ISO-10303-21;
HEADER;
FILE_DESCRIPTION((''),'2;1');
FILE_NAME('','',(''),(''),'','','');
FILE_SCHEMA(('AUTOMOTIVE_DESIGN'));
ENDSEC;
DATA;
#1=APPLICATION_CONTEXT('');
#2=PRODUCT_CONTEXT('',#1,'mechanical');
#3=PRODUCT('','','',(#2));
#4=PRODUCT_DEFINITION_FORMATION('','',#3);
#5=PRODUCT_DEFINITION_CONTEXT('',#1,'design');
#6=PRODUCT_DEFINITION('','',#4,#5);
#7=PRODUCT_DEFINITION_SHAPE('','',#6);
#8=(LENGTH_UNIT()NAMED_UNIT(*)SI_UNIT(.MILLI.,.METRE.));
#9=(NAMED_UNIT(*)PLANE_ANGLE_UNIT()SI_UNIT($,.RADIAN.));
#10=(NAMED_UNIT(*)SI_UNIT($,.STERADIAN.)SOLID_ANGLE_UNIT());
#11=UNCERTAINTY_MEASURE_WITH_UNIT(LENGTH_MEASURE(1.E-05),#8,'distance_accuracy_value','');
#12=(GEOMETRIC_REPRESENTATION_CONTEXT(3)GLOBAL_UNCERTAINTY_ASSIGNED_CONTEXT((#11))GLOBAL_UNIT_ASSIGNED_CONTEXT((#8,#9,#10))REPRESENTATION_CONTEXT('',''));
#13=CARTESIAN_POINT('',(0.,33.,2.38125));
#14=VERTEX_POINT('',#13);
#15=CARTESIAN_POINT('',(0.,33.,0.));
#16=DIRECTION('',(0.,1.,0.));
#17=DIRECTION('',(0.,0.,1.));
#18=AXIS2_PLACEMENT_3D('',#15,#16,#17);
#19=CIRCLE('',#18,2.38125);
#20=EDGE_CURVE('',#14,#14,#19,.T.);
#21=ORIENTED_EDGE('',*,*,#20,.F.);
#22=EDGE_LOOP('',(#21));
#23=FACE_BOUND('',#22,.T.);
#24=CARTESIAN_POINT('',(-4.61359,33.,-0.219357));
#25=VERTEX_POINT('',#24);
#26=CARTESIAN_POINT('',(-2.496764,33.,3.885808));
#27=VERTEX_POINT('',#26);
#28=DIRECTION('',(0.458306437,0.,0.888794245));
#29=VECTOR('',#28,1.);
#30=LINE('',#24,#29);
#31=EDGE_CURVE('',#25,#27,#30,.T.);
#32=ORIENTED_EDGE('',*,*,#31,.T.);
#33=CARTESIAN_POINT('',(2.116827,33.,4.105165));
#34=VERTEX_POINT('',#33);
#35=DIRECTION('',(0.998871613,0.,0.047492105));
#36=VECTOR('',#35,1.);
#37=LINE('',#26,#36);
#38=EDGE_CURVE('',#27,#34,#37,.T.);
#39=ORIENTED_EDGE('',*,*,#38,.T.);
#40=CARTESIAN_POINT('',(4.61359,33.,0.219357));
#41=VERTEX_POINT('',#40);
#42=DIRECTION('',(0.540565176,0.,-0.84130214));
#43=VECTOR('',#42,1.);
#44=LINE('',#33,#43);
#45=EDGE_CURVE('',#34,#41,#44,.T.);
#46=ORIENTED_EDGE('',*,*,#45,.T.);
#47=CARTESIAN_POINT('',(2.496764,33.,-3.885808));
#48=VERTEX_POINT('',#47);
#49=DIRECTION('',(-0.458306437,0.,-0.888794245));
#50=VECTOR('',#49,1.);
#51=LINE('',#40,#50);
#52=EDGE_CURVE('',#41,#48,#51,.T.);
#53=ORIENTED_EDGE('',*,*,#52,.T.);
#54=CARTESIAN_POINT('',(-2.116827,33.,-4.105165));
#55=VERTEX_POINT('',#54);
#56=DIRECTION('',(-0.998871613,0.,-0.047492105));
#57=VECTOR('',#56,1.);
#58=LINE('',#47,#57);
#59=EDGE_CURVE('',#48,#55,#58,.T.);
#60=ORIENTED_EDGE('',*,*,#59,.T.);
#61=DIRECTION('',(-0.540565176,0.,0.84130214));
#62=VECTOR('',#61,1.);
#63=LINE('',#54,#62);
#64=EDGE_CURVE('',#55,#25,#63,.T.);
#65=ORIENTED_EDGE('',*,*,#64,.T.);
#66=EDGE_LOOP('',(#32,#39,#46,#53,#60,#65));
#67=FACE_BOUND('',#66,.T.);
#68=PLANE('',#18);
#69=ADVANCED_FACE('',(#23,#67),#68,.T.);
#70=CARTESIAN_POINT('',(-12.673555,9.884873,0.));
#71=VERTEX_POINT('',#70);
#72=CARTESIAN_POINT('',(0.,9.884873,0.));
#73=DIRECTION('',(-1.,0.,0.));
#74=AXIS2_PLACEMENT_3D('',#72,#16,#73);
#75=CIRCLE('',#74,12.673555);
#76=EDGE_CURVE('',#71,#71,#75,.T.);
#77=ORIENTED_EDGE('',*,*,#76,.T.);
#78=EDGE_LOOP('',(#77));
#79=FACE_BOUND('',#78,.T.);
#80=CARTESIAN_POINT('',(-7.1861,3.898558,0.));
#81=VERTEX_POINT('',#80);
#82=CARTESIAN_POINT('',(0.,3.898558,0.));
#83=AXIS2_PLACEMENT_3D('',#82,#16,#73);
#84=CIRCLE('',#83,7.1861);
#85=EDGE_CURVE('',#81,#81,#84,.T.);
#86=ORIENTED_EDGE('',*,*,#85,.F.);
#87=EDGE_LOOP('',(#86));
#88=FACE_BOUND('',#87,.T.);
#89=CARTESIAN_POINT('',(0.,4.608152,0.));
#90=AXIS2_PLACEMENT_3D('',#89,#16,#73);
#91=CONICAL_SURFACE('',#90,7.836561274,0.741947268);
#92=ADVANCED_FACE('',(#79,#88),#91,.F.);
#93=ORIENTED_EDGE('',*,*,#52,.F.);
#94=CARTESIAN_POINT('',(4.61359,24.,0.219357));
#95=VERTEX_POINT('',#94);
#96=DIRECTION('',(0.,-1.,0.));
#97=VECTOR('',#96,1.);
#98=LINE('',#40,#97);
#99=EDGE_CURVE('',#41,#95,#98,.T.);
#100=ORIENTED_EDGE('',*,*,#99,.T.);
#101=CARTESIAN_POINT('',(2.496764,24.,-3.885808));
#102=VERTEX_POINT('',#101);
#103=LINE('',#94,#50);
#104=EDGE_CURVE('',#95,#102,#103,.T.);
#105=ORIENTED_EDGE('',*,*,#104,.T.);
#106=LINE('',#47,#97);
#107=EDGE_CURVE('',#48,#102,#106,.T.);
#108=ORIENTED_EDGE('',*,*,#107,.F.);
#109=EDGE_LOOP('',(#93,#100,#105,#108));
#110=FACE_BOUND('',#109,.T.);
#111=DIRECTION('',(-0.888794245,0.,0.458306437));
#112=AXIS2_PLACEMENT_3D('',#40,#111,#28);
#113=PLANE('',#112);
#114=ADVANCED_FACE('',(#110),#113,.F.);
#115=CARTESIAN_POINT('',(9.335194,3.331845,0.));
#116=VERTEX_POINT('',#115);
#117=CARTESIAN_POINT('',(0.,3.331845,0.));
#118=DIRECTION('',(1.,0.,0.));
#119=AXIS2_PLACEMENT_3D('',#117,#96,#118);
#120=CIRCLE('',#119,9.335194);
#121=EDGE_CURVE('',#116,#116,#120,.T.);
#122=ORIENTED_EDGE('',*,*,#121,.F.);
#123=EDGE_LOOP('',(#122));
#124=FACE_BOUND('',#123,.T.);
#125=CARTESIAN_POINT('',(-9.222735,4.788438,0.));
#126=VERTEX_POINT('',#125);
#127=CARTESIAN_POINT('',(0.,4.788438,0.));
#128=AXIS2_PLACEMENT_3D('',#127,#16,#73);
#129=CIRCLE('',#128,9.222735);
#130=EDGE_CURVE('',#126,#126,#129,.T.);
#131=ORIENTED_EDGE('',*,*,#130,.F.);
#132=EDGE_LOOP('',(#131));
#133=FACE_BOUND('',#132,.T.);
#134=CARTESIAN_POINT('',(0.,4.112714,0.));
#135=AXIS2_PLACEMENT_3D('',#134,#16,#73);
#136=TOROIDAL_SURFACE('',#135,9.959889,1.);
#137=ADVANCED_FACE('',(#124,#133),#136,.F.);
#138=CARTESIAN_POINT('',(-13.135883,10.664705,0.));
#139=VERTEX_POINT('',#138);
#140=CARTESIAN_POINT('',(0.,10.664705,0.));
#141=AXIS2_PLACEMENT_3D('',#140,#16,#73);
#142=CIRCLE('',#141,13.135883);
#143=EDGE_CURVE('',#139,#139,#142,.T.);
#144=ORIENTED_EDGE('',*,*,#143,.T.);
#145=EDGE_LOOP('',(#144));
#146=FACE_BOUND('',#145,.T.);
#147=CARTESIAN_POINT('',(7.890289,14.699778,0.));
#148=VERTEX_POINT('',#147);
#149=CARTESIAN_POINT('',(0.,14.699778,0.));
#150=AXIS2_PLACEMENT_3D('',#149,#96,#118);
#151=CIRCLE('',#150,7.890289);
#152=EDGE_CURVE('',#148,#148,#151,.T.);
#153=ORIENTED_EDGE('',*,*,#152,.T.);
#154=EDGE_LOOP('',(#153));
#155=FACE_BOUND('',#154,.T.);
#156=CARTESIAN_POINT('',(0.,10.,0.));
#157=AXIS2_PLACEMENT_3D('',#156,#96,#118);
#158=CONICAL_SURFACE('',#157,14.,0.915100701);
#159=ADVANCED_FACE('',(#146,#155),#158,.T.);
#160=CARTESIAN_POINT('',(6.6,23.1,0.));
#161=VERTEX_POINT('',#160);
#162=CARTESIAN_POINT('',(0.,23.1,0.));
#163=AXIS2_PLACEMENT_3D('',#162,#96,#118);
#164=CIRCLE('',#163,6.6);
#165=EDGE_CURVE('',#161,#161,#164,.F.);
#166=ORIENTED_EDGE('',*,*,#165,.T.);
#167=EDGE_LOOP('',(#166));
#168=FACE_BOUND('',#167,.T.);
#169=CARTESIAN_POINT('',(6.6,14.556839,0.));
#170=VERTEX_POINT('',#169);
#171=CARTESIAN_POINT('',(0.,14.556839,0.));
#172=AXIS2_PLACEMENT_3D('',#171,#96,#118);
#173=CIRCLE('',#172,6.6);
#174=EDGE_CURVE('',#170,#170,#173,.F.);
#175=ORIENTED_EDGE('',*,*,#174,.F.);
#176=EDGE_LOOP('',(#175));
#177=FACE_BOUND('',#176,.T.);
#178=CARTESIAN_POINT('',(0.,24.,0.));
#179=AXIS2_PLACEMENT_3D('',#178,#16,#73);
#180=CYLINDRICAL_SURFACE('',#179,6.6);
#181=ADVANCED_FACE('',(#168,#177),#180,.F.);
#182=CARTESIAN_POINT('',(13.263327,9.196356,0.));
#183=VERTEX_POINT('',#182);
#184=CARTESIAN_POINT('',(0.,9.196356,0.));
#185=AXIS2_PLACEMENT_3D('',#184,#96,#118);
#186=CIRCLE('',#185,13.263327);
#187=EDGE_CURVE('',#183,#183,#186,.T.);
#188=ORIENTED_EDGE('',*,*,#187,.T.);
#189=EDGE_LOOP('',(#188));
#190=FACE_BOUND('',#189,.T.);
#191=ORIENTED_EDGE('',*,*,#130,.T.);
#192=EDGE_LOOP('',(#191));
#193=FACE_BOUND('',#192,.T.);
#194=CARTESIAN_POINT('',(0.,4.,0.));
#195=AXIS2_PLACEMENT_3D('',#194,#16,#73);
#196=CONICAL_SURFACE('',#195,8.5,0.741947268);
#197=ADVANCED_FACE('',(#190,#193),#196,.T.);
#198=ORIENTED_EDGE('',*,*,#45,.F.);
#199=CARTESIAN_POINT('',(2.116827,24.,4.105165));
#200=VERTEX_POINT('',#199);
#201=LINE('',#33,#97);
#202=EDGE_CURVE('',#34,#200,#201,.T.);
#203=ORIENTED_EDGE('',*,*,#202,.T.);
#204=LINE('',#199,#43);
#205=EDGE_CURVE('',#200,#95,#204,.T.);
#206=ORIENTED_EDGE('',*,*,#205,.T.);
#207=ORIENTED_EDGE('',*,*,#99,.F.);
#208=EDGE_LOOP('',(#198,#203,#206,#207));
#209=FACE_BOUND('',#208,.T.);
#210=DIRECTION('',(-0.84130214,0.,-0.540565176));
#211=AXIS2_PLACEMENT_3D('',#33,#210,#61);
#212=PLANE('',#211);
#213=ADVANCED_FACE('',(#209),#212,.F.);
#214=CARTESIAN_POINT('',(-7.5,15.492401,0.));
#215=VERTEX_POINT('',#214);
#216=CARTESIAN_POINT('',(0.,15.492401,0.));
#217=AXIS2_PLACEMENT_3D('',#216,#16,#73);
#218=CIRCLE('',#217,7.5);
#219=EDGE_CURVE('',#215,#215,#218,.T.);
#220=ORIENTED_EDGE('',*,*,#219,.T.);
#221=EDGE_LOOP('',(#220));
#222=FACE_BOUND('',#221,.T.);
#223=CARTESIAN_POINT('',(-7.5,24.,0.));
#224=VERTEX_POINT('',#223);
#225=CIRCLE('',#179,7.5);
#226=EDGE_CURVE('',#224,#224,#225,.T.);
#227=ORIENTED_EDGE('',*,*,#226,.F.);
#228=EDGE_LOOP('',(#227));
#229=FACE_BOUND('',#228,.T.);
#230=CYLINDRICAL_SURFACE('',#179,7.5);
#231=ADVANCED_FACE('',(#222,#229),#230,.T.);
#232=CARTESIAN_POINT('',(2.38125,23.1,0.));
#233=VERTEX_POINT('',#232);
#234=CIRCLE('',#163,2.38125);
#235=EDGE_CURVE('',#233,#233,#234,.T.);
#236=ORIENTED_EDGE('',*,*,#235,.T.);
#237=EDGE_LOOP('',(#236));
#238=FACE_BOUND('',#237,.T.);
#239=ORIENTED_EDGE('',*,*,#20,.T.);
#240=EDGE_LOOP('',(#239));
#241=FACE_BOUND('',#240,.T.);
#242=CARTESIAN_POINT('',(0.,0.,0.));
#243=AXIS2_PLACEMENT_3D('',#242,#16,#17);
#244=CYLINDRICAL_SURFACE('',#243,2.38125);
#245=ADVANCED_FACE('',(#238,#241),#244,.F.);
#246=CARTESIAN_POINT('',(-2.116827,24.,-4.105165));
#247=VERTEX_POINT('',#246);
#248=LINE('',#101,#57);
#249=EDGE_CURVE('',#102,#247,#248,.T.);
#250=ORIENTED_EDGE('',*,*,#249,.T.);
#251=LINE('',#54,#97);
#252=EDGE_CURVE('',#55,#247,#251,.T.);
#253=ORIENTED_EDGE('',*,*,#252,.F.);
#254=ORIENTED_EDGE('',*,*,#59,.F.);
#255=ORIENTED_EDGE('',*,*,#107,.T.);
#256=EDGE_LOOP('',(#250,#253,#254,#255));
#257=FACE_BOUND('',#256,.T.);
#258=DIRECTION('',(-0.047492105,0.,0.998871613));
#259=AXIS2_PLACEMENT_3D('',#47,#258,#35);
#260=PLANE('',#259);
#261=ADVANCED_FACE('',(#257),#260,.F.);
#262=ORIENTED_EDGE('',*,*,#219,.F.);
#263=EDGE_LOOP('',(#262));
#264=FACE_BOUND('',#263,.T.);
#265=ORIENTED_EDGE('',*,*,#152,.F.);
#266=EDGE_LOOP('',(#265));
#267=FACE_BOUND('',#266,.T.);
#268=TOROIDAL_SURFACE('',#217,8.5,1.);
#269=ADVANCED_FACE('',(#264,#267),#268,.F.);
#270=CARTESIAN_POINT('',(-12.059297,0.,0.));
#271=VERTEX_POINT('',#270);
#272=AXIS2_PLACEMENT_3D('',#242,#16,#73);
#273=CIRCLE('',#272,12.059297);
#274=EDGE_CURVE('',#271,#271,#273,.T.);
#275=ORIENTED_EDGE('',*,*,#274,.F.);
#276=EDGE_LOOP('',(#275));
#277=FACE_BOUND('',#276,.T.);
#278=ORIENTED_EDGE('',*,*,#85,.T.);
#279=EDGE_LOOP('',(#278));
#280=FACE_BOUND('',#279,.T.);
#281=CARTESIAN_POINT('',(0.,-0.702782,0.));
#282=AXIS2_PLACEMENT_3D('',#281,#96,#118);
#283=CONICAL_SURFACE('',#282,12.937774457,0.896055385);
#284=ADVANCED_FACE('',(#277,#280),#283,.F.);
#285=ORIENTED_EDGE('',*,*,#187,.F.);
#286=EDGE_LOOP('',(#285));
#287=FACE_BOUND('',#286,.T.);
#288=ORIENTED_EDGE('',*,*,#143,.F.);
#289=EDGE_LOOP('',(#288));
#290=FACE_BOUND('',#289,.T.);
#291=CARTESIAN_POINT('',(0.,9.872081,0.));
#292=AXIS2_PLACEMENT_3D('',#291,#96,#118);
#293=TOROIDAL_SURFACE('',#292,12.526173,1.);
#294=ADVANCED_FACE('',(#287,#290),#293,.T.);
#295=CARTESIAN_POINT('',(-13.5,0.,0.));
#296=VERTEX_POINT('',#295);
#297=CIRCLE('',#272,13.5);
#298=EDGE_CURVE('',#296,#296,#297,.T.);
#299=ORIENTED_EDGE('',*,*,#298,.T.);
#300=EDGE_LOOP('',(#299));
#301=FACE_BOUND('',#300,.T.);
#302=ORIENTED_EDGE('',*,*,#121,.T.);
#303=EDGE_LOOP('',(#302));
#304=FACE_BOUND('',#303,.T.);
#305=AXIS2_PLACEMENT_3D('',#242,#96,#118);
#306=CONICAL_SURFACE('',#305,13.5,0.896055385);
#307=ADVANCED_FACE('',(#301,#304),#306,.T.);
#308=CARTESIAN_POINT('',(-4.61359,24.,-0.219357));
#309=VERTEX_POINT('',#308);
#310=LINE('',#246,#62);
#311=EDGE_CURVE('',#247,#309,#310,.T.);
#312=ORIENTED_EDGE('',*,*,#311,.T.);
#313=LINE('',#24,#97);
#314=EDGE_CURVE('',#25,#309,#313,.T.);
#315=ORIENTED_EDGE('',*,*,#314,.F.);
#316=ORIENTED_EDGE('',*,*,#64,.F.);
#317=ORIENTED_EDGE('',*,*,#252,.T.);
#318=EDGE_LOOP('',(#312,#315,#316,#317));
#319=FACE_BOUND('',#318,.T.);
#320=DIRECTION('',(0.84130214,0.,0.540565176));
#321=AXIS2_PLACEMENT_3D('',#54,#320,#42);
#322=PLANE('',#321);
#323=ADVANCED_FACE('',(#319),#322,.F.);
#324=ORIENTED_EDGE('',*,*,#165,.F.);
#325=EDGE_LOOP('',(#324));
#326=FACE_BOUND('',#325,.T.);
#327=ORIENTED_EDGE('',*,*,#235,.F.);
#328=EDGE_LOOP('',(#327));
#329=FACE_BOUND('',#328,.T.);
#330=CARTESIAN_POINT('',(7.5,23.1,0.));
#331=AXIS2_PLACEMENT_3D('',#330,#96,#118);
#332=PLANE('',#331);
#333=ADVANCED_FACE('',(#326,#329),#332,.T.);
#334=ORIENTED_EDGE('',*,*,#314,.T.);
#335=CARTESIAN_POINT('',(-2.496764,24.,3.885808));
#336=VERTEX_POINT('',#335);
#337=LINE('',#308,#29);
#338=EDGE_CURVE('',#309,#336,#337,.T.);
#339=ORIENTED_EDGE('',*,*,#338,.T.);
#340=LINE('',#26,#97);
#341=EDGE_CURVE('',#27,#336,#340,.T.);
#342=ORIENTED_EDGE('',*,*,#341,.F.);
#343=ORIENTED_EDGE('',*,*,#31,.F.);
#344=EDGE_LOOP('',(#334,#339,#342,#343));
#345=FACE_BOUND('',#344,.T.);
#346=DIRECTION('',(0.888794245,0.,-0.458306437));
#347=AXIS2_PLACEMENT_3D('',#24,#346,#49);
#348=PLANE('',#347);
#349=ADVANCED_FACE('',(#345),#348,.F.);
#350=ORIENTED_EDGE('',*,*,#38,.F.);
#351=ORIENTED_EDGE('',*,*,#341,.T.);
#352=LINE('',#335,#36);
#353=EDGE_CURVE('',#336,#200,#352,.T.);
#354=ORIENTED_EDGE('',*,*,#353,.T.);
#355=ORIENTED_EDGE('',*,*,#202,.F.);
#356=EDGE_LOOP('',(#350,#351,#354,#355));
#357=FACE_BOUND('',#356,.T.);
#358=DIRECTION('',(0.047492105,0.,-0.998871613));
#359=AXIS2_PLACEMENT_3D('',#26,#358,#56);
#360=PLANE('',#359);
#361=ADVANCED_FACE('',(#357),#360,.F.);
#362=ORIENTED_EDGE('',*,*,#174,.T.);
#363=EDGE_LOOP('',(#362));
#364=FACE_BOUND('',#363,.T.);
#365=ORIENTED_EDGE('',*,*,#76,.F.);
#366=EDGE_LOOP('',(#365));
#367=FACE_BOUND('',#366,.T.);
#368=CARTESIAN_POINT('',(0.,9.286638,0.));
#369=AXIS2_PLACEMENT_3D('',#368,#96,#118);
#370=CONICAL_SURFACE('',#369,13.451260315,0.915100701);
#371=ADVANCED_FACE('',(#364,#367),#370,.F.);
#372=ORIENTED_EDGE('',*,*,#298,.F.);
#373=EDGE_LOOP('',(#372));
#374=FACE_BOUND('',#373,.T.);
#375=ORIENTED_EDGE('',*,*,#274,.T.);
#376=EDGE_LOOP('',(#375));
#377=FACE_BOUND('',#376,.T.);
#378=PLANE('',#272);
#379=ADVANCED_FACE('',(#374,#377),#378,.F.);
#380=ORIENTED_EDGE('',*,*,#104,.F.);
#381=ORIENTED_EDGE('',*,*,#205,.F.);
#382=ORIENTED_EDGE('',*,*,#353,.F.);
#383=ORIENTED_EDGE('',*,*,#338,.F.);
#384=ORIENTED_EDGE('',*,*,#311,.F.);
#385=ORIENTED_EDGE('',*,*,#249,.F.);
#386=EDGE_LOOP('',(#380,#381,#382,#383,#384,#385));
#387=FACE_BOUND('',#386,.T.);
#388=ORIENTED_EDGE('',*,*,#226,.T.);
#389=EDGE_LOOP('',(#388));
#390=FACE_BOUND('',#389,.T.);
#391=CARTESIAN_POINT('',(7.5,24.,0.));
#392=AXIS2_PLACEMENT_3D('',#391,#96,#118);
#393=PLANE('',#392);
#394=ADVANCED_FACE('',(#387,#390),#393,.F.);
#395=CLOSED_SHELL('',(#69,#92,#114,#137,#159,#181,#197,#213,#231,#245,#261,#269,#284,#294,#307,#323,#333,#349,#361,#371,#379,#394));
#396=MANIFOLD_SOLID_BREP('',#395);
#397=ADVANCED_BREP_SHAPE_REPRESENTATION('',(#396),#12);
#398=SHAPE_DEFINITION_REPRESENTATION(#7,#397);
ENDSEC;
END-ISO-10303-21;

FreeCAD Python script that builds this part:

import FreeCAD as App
import Part
import Sketcher


def edges_at(feature, points):
    """Names of the edges that pass closest to the given points."""
    edges = feature.Shape.Edges
    near = lambda p: min(range(len(edges)), key=lambda i: edges[i].distToShape(Part.Vertex(*p))[0])
    return sorted({f"Edge{near(p) + 1}" for p in points})


def faces_at(feature, points):
    """Names of the faces that lie closest to the given points."""
    faces = feature.Shape.Faces
    near = lambda p: min(range(len(faces)), key=lambda i: faces[i].distToShape(Part.Vertex(*p))[0])
    return sorted({f"Face{near(p) + 1}" for p in points})


def add_polygon(sketch, points):
    """Adds a closed chain of lines whose ends are joined by coincident constraints."""
    first, n = sketch.GeometryCount, len(points)
    for a, b in zip(points, points[1:] + points[:1]):
        sketch.addGeometry(Part.LineSegment(App.Vector(*a, 0), App.Vector(*b, 0)), False)
    for i in range(n):
        sketch.addConstraint(Sketcher.Constraint("Coincident", first + i, 2, first + (i + 1) % n, 1))

doc = App.newDocument("Part")
params = doc.addObject("Spreadsheet::Sheet", "Params")
for row, (alias, value) in enumerate([
    ("sketch1_height", "9 mm"),
    ("sketch1_height2", "24 mm"),
    ("sketch1_width", "13.5 mm"),
    ("sketch1_width2", "7.5 mm"),
    ("revolution_angle", "360 deg"),
    ("thickness_wall", "0.9 mm"),
    ("pad1_length", "9 mm"),
    ("fillet_radius", "1 mm"),
], start=1):
    params.set(f"A{row}", alias)
    params.set(f"B{row}", "=" + value)
    params.setAlias(f"B{row}", alias)

body = doc.addObject("PartDesign::Body", "Body")

sketch1 = body.newObject("Sketcher::SketchObject", "Sketch")
sketch1.AttachmentSupport = (doc.getObject("XY_Plane"), [""])
sketch1.MapMode = "FlatFace"
add_polygon(sketch1, [(0, 0), (14, 0), (8, 4), (14, 10), (8, 15), (8, 24), (0, 24)])
sketch1.addConstraint([
    Sketcher.Constraint("Horizontal", 0),
    Sketcher.Constraint("Vertical", 4),
    Sketcher.Constraint("Horizontal", 5),
    Sketcher.Constraint("Vertical", 6),
    Sketcher.Constraint("Coincident", 6, 2, -1, 1),
    Sketcher.Constraint("DistanceY", 4, 1, 4, 2, 9.0),
    Sketcher.Constraint("DistanceY", 6, 2, 6, 1, 24.0),
    Sketcher.Constraint("DistanceX", 0, 1, 0, 2, 13.5),
    Sketcher.Constraint("DistanceX", 5, 2, 5, 1, 7.5),
    Sketcher.Constraint("DistanceY", -1, 1, 1, 2, 4.0),
    Sketcher.Constraint("DistanceX", -1, 1, 2, 2, 14.0),
    Sketcher.Constraint("DistanceY", -1, 1, 2, 2, 10.0),
    Sketcher.Constraint("DistanceX", 1, 2, 0, 2, 5.0),
])
sketch1.setExpression("Constraints[12]", "Params.sketch1_height")
sketch1.setExpression("Constraints[13]", "Params.sketch1_height2")
sketch1.setExpression("Constraints[14]", "Params.sketch1_width")
sketch1.setExpression("Constraints[15]", "Params.sketch1_width2")
revolution = body.newObject("PartDesign::Revolution", "Revolution")
revolution.Profile = sketch1
revolution.ReferenceAxis = (sketch1, ["V_Axis"])
revolution.setExpression("Angle", "Params.revolution_angle")
doc.recompute()

thickness = body.newObject("PartDesign::Thickness", "Thickness")
thickness.Base = (revolution, faces_at(revolution, [(0, 0, 0)]))
thickness.setExpression("Value", "Params.thickness_wall")
thickness.Reversed = True
thickness.Join = "Intersection"

sketch2 = body.newObject("Sketcher::SketchObject", "Sketch001")
sketch2.AttachmentSupport = (doc.getObject("XZ_Plane"), [""])
sketch2.MapMode = "FlatFace"
sketch2.AttachmentOffset = App.Placement(App.Vector(0, 0, -24), App.Rotation())
add_polygon(sketch2, [(2.5, -3.9), (-2.1, -4.1), (-4.6, -0.2), (-2.5, 3.9), (2.1, 4.1), (4.6, 0.2)])
sketch2.addConstraint([
    Sketcher.Constraint("Symmetric", 0, 2, 3, 2, -1, 1),
    Sketcher.Constraint("Symmetric", 1, 2, 4, 2, -1, 1),
    Sketcher.Constraint("Symmetric", 2, 2, 5, 2, -1, 1),
    Sketcher.Constraint("Equal", 0, 1),
    Sketcher.Constraint("Equal", 1, 2),
    Sketcher.Constraint("DistanceX", 1, 2, -1, 1, 4.61359),
    Sketcher.Constraint("DistanceY", -1, 1, 2, 2, 3.885808),
    Sketcher.Constraint("DistanceY", 0, 2, 1, 2, 3.885808),
    Sketcher.Constraint("DistanceX", 2, 2, 3, 2, 4.61359),
])
pad1 = body.newObject("PartDesign::Pad", "Pad")
pad1.Profile = sketch2
pad1.setExpression("Length", "Params.pad1_length")
pad1.Reversed = True
doc.recompute()

fillet = body.newObject("PartDesign::Fillet", "Fillet")
fillet.Base = (pad1, edges_at(pad1, [(7.5, 15, 0), (14, 10, 0), (8.5, 4, 0)]))
fillet.setExpression("Radius", "Params.fillet_radius")

sketch3 = body.newObject("Sketcher::SketchObject", "Sketch002")
sketch3.AttachmentSupport = (doc.getObject("XZ_Plane"), [""])
sketch3.MapMode = "FlatFace"
sketch3.AttachmentOffset = App.Placement(App.Vector(0, 0, -33), App.Rotation())
sketch3.addGeometry(Part.Circle(App.Vector(0, 0, 0), App.Vector(0, 0, 1), 2.4), False)
sketch3.addConstraint([
    Sketcher.Constraint("Coincident", 0, 3, -1, 1),
    Sketcher.Constraint("Diameter", 0, 4.7625),
])
pocket1 = body.newObject("PartDesign::Pocket", "Pocket")
pocket1.Profile = sketch3
pocket1.Type = "ThroughAll"
pocket1.Reversed = True

doc.recompute()
